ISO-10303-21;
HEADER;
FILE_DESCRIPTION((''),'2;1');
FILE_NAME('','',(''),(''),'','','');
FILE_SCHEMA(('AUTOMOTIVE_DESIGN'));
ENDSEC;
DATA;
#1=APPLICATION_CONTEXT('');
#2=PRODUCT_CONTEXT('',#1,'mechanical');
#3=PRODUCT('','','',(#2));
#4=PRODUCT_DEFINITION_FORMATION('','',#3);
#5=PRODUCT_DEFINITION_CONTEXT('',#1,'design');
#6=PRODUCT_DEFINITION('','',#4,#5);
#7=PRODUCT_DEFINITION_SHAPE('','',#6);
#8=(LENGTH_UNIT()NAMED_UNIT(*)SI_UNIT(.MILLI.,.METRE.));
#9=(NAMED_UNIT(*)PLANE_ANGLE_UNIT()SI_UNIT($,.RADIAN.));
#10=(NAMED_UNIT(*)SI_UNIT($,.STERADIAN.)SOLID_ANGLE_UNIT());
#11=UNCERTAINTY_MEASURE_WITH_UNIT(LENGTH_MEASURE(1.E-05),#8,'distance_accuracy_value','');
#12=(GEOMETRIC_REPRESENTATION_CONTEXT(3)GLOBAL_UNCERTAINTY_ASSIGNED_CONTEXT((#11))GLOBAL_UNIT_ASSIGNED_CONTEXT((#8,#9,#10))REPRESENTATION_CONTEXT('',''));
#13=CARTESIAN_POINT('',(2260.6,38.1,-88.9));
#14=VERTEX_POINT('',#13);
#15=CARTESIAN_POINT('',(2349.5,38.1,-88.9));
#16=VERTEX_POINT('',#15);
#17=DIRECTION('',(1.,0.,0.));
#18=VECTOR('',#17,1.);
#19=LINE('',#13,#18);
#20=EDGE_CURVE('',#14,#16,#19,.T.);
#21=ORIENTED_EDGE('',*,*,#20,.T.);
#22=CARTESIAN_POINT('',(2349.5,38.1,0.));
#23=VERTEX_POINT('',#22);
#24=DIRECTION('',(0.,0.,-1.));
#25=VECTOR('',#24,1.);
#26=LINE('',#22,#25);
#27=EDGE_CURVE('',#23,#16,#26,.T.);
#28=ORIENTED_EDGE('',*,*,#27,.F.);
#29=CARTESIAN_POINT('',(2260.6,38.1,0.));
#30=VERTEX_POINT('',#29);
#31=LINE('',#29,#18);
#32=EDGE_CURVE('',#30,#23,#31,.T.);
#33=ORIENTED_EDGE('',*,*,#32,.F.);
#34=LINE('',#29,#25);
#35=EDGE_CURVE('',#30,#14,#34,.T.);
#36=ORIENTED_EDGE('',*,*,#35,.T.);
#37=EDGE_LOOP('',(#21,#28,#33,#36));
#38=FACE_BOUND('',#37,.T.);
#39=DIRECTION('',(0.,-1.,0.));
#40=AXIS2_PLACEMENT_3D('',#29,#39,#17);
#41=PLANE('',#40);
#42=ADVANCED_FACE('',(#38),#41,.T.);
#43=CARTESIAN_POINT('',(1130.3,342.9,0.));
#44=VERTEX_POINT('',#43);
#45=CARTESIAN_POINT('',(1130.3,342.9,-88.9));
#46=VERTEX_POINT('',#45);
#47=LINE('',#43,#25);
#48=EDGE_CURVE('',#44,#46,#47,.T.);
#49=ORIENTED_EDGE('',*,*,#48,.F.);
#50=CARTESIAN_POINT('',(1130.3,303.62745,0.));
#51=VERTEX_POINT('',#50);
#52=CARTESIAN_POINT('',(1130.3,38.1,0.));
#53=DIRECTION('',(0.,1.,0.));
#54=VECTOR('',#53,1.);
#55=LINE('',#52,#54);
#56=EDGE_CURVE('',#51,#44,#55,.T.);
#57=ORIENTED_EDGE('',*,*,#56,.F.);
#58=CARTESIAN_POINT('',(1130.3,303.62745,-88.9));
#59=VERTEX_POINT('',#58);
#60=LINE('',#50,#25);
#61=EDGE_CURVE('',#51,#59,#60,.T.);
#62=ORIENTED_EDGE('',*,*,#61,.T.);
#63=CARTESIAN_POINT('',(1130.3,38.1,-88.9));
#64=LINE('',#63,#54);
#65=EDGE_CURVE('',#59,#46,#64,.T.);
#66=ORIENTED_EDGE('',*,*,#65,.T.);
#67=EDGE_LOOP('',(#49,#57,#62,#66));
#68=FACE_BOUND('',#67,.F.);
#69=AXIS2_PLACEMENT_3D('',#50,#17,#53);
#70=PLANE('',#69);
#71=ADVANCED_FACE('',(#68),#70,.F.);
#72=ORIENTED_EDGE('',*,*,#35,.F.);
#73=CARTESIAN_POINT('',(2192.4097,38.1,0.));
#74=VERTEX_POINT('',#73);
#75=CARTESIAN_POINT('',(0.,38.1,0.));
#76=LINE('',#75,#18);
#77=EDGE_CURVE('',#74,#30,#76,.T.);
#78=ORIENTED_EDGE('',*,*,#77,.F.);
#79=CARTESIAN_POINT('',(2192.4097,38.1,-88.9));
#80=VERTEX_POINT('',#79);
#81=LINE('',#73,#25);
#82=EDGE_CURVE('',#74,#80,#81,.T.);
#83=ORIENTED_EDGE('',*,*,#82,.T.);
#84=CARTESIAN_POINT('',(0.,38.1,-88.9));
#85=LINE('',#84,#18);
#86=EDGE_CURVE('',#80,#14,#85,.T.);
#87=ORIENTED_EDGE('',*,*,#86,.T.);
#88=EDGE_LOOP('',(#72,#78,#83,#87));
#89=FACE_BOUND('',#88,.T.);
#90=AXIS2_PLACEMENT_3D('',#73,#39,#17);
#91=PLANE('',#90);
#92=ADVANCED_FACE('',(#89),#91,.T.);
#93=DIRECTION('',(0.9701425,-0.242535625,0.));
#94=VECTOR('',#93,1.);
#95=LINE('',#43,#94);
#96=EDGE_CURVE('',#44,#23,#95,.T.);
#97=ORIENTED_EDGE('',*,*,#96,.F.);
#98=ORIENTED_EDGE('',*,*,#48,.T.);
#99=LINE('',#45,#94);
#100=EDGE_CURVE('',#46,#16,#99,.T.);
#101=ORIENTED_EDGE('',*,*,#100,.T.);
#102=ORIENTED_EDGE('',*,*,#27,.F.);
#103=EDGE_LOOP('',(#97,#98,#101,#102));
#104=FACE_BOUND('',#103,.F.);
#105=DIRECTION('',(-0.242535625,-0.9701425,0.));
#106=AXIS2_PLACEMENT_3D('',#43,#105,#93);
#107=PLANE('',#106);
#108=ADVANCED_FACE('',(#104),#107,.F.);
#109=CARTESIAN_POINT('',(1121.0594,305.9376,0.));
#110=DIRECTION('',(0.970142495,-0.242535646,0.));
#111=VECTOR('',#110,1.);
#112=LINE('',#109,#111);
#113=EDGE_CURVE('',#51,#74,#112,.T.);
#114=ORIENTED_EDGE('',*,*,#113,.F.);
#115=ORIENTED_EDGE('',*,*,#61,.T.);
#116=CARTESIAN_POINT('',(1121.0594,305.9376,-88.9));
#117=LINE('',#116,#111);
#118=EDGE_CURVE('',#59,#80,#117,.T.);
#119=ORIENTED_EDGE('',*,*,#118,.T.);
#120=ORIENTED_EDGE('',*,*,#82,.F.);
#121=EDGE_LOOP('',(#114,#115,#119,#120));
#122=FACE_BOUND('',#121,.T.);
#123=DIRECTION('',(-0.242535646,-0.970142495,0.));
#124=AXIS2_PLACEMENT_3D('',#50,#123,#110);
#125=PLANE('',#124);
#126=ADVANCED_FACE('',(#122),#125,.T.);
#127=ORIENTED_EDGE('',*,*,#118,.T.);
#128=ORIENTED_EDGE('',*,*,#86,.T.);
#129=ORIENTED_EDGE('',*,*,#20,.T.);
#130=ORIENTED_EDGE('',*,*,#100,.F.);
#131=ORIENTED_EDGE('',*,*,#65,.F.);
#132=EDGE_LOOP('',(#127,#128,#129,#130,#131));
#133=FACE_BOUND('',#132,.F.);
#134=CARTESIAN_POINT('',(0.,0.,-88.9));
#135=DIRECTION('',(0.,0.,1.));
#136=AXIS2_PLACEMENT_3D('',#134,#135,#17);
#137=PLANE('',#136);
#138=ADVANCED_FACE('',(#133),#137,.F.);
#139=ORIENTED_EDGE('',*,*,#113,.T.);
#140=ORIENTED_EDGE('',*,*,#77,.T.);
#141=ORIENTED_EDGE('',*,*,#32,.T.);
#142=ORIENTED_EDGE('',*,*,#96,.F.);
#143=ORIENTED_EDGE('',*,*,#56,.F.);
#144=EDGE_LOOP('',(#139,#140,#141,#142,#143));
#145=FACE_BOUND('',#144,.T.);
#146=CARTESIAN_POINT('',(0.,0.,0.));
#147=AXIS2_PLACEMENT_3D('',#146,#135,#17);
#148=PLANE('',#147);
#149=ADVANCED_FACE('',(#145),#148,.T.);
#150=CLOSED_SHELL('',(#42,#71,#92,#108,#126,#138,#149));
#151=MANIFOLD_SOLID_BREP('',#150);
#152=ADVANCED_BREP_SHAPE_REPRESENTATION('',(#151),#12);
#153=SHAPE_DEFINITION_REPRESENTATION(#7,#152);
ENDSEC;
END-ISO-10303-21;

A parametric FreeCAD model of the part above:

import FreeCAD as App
import Part
import Sketcher

V = App.Vector
Q = App.Units.Quantity


def add_polygon(sketch, points):
    """Adds a closed chain of lines whose ends are joined by coincident constraints."""
    first, n = sketch.GeometryCount, len(points)
    for a, b in zip(points, points[1:] + points[:1]):
        sketch.addGeometry(Part.LineSegment(App.Vector(*a, 0), App.Vector(*b, 0)), False)
    for i in range(n):
        sketch.addConstraint(Sketcher.Constraint("Coincident", first + i, 2, first + (i + 1) % n, 1))

doc = App.newDocument("Part")
params = doc.addObject("Spreadsheet::Sheet", "Params")
for row, (alias, value) in enumerate([
    ("pad1_length", "3.5 in"),
], start=1):
    params.set(f"A{row}", alias)
    params.set(f"B{row}", "=" + value)
    params.setAlias(f"B{row}", alias)

body = doc.addObject("PartDesign::Body", "Body")

# Sketch on XY plane
sketch1 = body.newObject("Sketcher::SketchObject", "Sketch")
sketch1.AttachmentSupport = (doc.getObject("XY_Plane"), [""])
sketch1.MapMode = "FlatFace"
add_polygon(sketch1, [(2192, 38), (2350, 38), (1130, 343), (1130, 304)])  # lines 0-3
sketch1.addConstraint([
    Sketcher.Constraint("Horizontal", 0),
    Sketcher.Constraint("Vertical", 2),
    Sketcher.Constraint("Parallel", 1, 3),
    Sketcher.Constraint("DistanceY", 0, 2, 1, 2, Q("12 in")),
    Sketcher.Constraint("DistanceY", -1, 1, 0, 2, Q("1.5 in")),
    Sketcher.Constraint("DistanceX", 1, 2, 0, 2, Q("48 in")),
    Sketcher.Constraint("DistanceX", -1, 1, 0, 2, Q("92.5 in")),
    Sketcher.Constraint("DistanceX", 0, 1, 0, 2, Q("157.0903 mm")),
])
pad1 = body.newObject("PartDesign::Pad", "Pad")
pad1.Profile = sketch1
pad1.setExpression("Length", "Params.pad1_length")
pad1.Reversed = True

doc.recompute()
